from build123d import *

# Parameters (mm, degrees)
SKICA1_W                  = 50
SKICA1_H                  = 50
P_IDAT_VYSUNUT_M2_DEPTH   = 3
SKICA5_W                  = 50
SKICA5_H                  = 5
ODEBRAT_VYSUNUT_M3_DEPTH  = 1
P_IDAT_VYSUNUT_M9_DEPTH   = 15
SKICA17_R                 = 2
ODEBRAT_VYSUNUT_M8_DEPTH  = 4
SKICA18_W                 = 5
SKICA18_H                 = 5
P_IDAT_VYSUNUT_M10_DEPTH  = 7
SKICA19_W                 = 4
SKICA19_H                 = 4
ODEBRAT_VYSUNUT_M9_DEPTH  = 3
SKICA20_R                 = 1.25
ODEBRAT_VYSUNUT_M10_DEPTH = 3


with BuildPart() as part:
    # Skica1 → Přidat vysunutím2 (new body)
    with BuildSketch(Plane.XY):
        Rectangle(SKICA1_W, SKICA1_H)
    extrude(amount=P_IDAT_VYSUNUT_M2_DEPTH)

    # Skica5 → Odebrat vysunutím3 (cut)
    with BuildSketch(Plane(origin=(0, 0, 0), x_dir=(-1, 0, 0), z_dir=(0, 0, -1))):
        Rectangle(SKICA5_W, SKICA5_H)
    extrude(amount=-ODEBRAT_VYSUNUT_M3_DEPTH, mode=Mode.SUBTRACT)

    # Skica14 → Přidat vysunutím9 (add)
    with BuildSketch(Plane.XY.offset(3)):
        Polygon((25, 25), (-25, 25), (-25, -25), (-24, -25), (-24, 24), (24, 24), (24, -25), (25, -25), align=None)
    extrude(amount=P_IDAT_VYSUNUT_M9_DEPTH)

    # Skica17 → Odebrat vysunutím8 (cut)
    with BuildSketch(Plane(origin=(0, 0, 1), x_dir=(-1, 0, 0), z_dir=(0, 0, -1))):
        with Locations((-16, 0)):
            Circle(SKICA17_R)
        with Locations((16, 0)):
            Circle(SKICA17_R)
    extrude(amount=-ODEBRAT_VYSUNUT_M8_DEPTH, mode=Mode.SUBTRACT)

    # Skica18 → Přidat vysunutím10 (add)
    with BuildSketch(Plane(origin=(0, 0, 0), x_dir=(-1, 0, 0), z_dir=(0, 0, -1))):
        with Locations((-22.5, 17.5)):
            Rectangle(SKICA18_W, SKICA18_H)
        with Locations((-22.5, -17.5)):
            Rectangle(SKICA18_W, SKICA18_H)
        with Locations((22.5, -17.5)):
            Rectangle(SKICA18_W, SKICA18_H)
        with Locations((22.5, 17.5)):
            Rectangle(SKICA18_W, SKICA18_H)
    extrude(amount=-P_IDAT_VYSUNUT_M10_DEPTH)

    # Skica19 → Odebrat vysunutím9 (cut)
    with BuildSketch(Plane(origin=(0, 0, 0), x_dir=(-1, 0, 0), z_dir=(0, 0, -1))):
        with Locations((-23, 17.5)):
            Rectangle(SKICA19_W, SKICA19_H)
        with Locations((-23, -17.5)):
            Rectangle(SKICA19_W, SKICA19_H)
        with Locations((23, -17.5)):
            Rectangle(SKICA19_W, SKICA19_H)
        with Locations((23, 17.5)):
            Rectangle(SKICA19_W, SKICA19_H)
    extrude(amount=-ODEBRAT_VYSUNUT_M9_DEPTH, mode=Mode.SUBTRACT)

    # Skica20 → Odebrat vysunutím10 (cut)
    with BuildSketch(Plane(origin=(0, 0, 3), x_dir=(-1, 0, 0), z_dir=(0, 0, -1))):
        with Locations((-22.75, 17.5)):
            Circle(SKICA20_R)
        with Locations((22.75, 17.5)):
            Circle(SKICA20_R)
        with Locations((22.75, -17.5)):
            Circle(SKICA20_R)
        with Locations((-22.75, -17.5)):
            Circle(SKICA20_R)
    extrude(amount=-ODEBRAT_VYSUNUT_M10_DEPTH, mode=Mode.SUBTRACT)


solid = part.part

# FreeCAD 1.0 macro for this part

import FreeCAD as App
import Part
import Sketcher
Q = App.Units.Quantity

doc = App.newDocument("Part")
params = doc.addObject("Spreadsheet::Sheet", "Params")
for row, (alias, value) in enumerate([
    ("sketch1_width", "50 mm"),
    ("pad1_length", "3 mm"),
    ("sketch2_width", "50 mm"),
    ("sketch2_height", "5 mm"),
    ("pocket1_length", "1 mm"),
    ("sketch3_width", "50 mm"),
    ("sketch3_width2", "1 mm"),
    ("sketch3_height", "49 mm"),
    ("pad2_length", "15 mm"),
    ("sketch4_diameter", "4 mm"),
    ("pocket2_length", "4 mm"),
    ("sketch5_width", "5 mm"),
    ("pad3_length", "7 mm"),
    ("sketch6_width", "4 mm"),
    ("pocket3_length", "3 mm"),
    ("sketch7_diameter", "2.5 mm"),
    ("pocket4_length", "3 mm"),
], start=1):
    params.set(f"A{row}", alias)
    params.set(f"B{row}", "=" + value)
    params.setAlias(f"B{row}", alias)

body = doc.addObject("PartDesign::Body", "Body")

# Sketch on XY plane
sketch1 = doc.addObject("Sketcher::SketchObject", "Sketch")
body.addObject(sketch1)
sketch1.AttachmentSupport = (doc.XY_Plane, [""])
sketch1.MapMode = "FlatFace"
sketch1.addGeometry([
    Part.LineSegment(App.Vector(-25, 25, 0), App.Vector(-25, -25, 0)),
    Part.LineSegment(App.Vector(-25, -25, 0), App.Vector(25, -25, 0)),
    Part.LineSegment(App.Vector(25, -25, 0), App.Vector(25, 25, 0)),
    Part.LineSegment(App.Vector(25, 25, 0), App.Vector(-25, 25, 0)),
], False)
sketch1.addConstraint([
    Sketcher.Constraint("Coincident", 0, 2, 1, 1),
    Sketcher.Constraint("Coincident", 1, 2, 2, 1),
    Sketcher.Constraint("Coincident", 2, 2, 3, 1),
    Sketcher.Constraint("Coincident", 3, 2, 0, 1),
    Sketcher.Constraint("Vertical", 0),
    Sketcher.Constraint("Horizontal", 1),
    Sketcher.Constraint("Vertical", 2),
    Sketcher.Constraint("Horizontal", 3),
    Sketcher.Constraint("Symmetric", 0, 2, 2, 2, -1, 1),
    Sketcher.Constraint("Equal", 3, 0),
    Sketcher.Constraint("DistanceX", 1, 1, 1, 2, Q("50 mm")),
])
sketch1.setExpression("Constraints[10]", "Params.sketch1_width")
pad1 = doc.addObject("PartDesign::Pad", "Pad")
body.addObject(pad1)
pad1.Profile = sketch1
pad1.setExpression("Length", "Params.pad1_length")

# Sketch on XY plane
sketch2 = doc.addObject("Sketcher::SketchObject", "Sketch001")
body.addObject(sketch2)
sketch2.AttachmentSupport = (doc.XY_Plane, [""])
sketch2.MapMode = "FlatFace"
sketch2.addGeometry([
    Part.LineSegment(App.Vector(25, 2, 0), App.Vector(25, -2, 0)),
    Part.LineSegment(App.Vector(25, -2, 0), App.Vector(-25, -2, 0)),
    Part.LineSegment(App.Vector(-25, -2, 0), App.Vector(-25, 2, 0)),
    Part.LineSegment(App.Vector(-25, 2, 0), App.Vector(25, 2, 0)),
], False)
sketch2.addConstraint([
    Sketcher.Constraint("Coincident", 0, 2, 1, 1),
    Sketcher.Constraint("Coincident", 1, 2, 2, 1),
    Sketcher.Constraint("Coincident", 2, 2, 3, 1),
    Sketcher.Constraint("Coincident", 3, 2, 0, 1),
    Sketcher.Constraint("Vertical", 0),
    Sketcher.Constraint("Horizontal", 1),
    Sketcher.Constraint("Vertical", 2),
    Sketcher.Constraint("Horizontal", 3),
    Sketcher.Constraint("Symmetric", 0, 2, 2, 2, -1, 1),
    Sketcher.Constraint("DistanceX", 1, 2, 1, 1, Q("50 mm")),
    Sketcher.Constraint("DistanceY", 0, 2, 0, 1, Q("5 mm")),
])
sketch2.setExpression("Constraints[9]", "Params.sketch2_width")
sketch2.setExpression("Constraints[10]", "Params.sketch2_height")
pocket1 = doc.addObject("PartDesign::Pocket", "Pocket")
body.addObject(pocket1)
pocket1.Profile = sketch2
pocket1.setExpression("Length", "Params.pocket1_length")
pocket1.Reversed = True

# Sketch on XY plane
sketch3 = doc.addObject("Sketcher::SketchObject", "Sketch002")
body.addObject(sketch3)
sketch3.AttachmentSupport = (doc.XY_Plane, [""])
sketch3.MapMode = "FlatFace"
sketch3.AttachmentOffset = App.Placement(App.Vector(0, 0, 3), App.Rotation())
sketch3.addGeometry([
    Part.LineSegment(App.Vector(25, 25, 0), App.Vector(-25, 25, 0)),  # 0
    Part.LineSegment(App.Vector(-25, 25, 0), App.Vector(-25, -25, 0)),  # 1
    Part.LineSegment(App.Vector(-25, -25, 0), App.Vector(-24, -25, 0)),  # 2
    Part.LineSegment(App.Vector(-24, -25, 0), App.Vector(-24, 24, 0)),  # 3
    Part.LineSegment(App.Vector(-24, 24, 0), App.Vector(24, 24, 0)),  # 4
    Part.LineSegment(App.Vector(24, 24, 0), App.Vector(24, -25, 0)),  # 5
    Part.LineSegment(App.Vector(24, -25, 0), App.Vector(25, -25, 0)),  # 6
    Part.LineSegment(App.Vector(25, -25, 0), App.Vector(25, 25, 0)),  # 7
], False)
sketch3.addConstraint([
    Sketcher.Constraint("Coincident", 0, 2, 1, 1),
    Sketcher.Constraint("Coincident", 1, 2, 2, 1),
    Sketcher.Constraint("Coincident", 2, 2, 3, 1),
    Sketcher.Constraint("Coincident", 3, 2, 4, 1),
    Sketcher.Constraint("Coincident", 4, 2, 5, 1),
    Sketcher.Constraint("Coincident", 5, 2, 6, 1),
    Sketcher.Constraint("Coincident", 6, 2, 7, 1),
    Sketcher.Constraint("Coincident", 7, 2, 0, 1),
    Sketcher.Constraint("Horizontal", 0),
    Sketcher.Constraint("Vertical", 1),
    Sketcher.Constraint("Horizontal", 2),
    Sketcher.Constraint("Vertical", 3),
    Sketcher.Constraint("Horizontal", 4),
    Sketcher.Constraint("Vertical", 5),
    Sketcher.Constraint("Horizontal", 6),
    Sketcher.Constraint("Vertical", 7),
    Sketcher.Constraint("Symmetric", 0, 2, 6, 2, -1, 1),
    Sketcher.Constraint("Symmetric", 2, 2, 5, 2, -2),
    Sketcher.Constraint("Equal", 0, 1),
    Sketcher.Constraint("DistanceX", 0, 2, 0, 1, Q("50 mm")),
    Sketcher.Constraint("DistanceX", 2, 1, 2, 2, Q("1 mm")),
    Sketcher.Constraint("DistanceY", 3, 1, 3, 2, Q("49 mm")),
])
sketch3.setExpression("Constraints[19]", "Params.sketch3_width")
sketch3.setExpression("Constraints[20]", "Params.sketch3_width2")
sketch3.setExpression("Constraints[21]", "Params.sketch3_height")
pad2 = doc.addObject("PartDesign::Pad", "Pad001")
body.addObject(pad2)
pad2.Profile = sketch3
pad2.setExpression("Length", "Params.pad2_length")

# Sketch on XY plane
sketch4 = doc.addObject("Sketcher::SketchObject", "Sketch003")
body.addObject(sketch4)
sketch4.AttachmentSupport = (doc.XY_Plane, [""])
sketch4.MapMode = "FlatFace"
sketch4.AttachmentOffset = App.Placement(App.Vector(0, 0, 1), App.Rotation())
sketch4.addGeometry([
    Part.Circle(App.Vector(16, 0, 0), App.Vector(0, 0, 1), 2),
    Part.Circle(App.Vector(-16, 0, 0), App.Vector(0, 0, 1), 2),
], False)
sketch4.addConstraint([
    Sketcher.Constraint("Equal", 0, 1),
    Sketcher.Constraint("Symmetric", 0, 3, 1, 3, -1, 1),
    Sketcher.Constraint("PointOnObject", 0, 3, -1),
    Sketcher.Constraint("Diameter", 0, Q("4 mm")),
    Sketcher.Constraint("DistanceX", -1, 1, 0, 3, Q("16 mm")),
])
sketch4.setExpression("Constraints[3]", "Params.sketch4_diameter")
pocket2 = doc.addObject("PartDesign::Pocket", "Pocket001")
body.addObject(pocket2)
pocket2.Profile = sketch4
pocket2.setExpression("Length", "Params.pocket2_length")
pocket2.Reversed = True

# Sketch on XY plane
sketch5 = doc.addObject("Sketcher::SketchObject", "Sketch004")
body.addObject(sketch5)
sketch5.AttachmentSupport = (doc.XY_Plane, [""])
sketch5.MapMode = "FlatFace"
sketch5.addGeometry([
    Part.LineSegment(App.Vector(25, 20, 0), App.Vector(25, 15, 0)),  # 0
    Part.LineSegment(App.Vector(25, 15, 0), App.Vector(20, 15, 0)),  # 1
    Part.LineSegment(App.Vector(20, 15, 0), App.Vector(20, 20, 0)),  # 2
    Part.LineSegment(App.Vector(20, 20, 0), App.Vector(25, 20, 0)),  # 3
    Part.LineSegment(App.Vector(25, -15, 0), App.Vector(25, -20, 0)),  # 4
    Part.LineSegment(App.Vector(25, -20, 0), App.Vector(20, -20, 0)),  # 5
    Part.LineSegment(App.Vector(20, -20, 0), App.Vector(20, -15, 0)),  # 6
    Part.LineSegment(App.Vector(20, -15, 0), App.Vector(25, -15, 0)),  # 7
    Part.LineSegment(App.Vector(-20, -15, 0), App.Vector(-20, -20, 0)),  # 8
    Part.LineSegment(App.Vector(-20, -20, 0), App.Vector(-25, -20, 0)),  # 9
    Part.LineSegment(App.Vector(-25, -20, 0), App.Vector(-25, -15, 0)),  # 10
    Part.LineSegment(App.Vector(-25, -15, 0), App.Vector(-20, -15, 0)),  # 11
    Part.LineSegment(App.Vector(-20, 20, 0), App.Vector(-20, 15, 0)),  # 12
    Part.LineSegment(App.Vector(-20, 15, 0), App.Vector(-25, 15, 0)),  # 13
    Part.LineSegment(App.Vector(-25, 15, 0), App.Vector(-25, 20, 0)),  # 14
    Part.LineSegment(App.Vector(-25, 20, 0), App.Vector(-20, 20, 0)),  # 15
], False)
sketch5.addConstraint([
    Sketcher.Constraint("Coincident", 0, 2, 1, 1),
    Sketcher.Constraint("Coincident", 1, 2, 2, 1),
    Sketcher.Constraint("Coincident", 2, 2, 3, 1),
    Sketcher.Constraint("Coincident", 3, 2, 0, 1),
    Sketcher.Constraint("Coincident", 4, 2, 5, 1),
    Sketcher.Constraint("Coincident", 5, 2, 6, 1),
    Sketcher.Constraint("Coincident", 6, 2, 7, 1),
    Sketcher.Constraint("Coincident", 7, 2, 4, 1),
    Sketcher.Constraint("Coincident", 8, 2, 9, 1),
    Sketcher.Constraint("Coincident", 9, 2, 10, 1),
    Sketcher.Constraint("Coincident", 10, 2, 11, 1),
    Sketcher.Constraint("Coincident", 11, 2, 8, 1),
    Sketcher.Constraint("Coincident", 12, 2, 13, 1),
    Sketcher.Constraint("Coincident", 13, 2, 14, 1),
    Sketcher.Constraint("Coincident", 14, 2, 15, 1),
    Sketcher.Constraint("Coincident", 15, 2, 12, 1),
    Sketcher.Constraint("Vertical", 0),
    Sketcher.Constraint("Horizontal", 1),
    Sketcher.Constraint("Vertical", 2),
    Sketcher.Constraint("Horizontal", 3),
    Sketcher.Constraint("Vertical", 4),
    Sketcher.Constraint("Horizontal", 5),
    Sketcher.Constraint("Vertical", 6),
    Sketcher.Constraint("Horizontal", 7),
    Sketcher.Constraint("Vertical", 8),
    Sketcher.Constraint("Horizontal", 9),
    Sketcher.Constraint("Vertical", 10),
    Sketcher.Constraint("Horizontal", 11),
    Sketcher.Constraint("Vertical", 12),
    Sketcher.Constraint("Horizontal", 13),
    Sketcher.Constraint("Vertical", 14),
    Sketcher.Constraint("Horizontal", 15),
    Sketcher.Constraint("Symmetric", 2, 2, 8, 2, -1, 1),
    Sketcher.Constraint("Symmetric", 0, 2, 10, 2, -1, 1),
    Sketcher.Constraint("Symmetric", 6, 2, 12, 2, -1, 1),
    Sketcher.Constraint("Symmetric", 4, 2, 14, 2, -1, 1),
    Sketcher.Constraint("Symmetric", 5, 2, 8, 2, -2),
    Sketcher.Constraint("Symmetric", 7, 2, 10, 2, -2),
    Sketcher.Constraint("Equal", 15, 0),
    Sketcher.Constraint("DistanceX", 1, 2, 1, 1, Q("5 mm")),
    Sketcher.Constraint("DistanceX", -1, 1, 0, 2, Q("25 mm")),
    Sketcher.Constraint("DistanceY", -1, 1, 0, 2, Q("15 mm")),
])
sketch5.setExpression("Constraints[39]", "Params.sketch5_width")
pad3 = doc.addObject("PartDesign::Pad", "Pad002")
body.addObject(pad3)
pad3.Profile = sketch5
pad3.setExpression("Length", "Params.pad3_length")

# Sketch on XY plane
sketch6 = doc.addObject("Sketcher::SketchObject", "Sketch005")
body.addObject(sketch6)
sketch6.AttachmentSupport = (doc.XY_Plane, [""])
sketch6.MapMode = "FlatFace"
sketch6.addGeometry([
    Part.LineSegment(App.Vector(25, 19.5, 0), App.Vector(25, 15.5, 0)),  # 0
    Part.LineSegment(App.Vector(25, 15.5, 0), App.Vector(21, 15.5, 0)),  # 1
    Part.LineSegment(App.Vector(21, 15.5, 0), App.Vector(21, 19.5, 0)),  # 2
    Part.LineSegment(App.Vector(21, 19.5, 0), App.Vector(25, 19.5, 0)),  # 3
    Part.LineSegment(App.Vector(25, -15.5, 0), App.Vector(25, -19.5, 0)),  # 4
    Part.LineSegment(App.Vector(25, -19.5, 0), App.Vector(21, -19.5, 0)),  # 5
    Part.LineSegment(App.Vector(21, -19.5, 0), App.Vector(21, -15.5, 0)),  # 6
    Part.LineSegment(App.Vector(21, -15.5, 0), App.Vector(25, -15.5, 0)),  # 7
    Part.LineSegment(App.Vector(-21, -15.5, 0), App.Vector(-21, -19.5, 0)),  # 8
    Part.LineSegment(App.Vector(-21, -19.5, 0), App.Vector(-25, -19.5, 0)),  # 9
    Part.LineSegment(App.Vector(-25, -19.5, 0), App.Vector(-25, -15.5, 0)),  # 10
    Part.LineSegment(App.Vector(-25, -15.5, 0), App.Vector(-21, -15.5, 0)),  # 11
    Part.LineSegment(App.Vector(-21, 19.5, 0), App.Vector(-21, 15.5, 0)),  # 12
    Part.LineSegment(App.Vector(-21, 15.5, 0), App.Vector(-25, 15.5, 0)),  # 13
    Part.LineSegment(App.Vector(-25, 15.5, 0), App.Vector(-25, 19.5, 0)),  # 14
    Part.LineSegment(App.Vector(-25, 19.5, 0), App.Vector(-21, 19.5, 0)),  # 15
], False)
sketch6.addConstraint([
    Sketcher.Constraint("Coincident", 0, 2, 1, 1),
    Sketcher.Constraint("Coincident", 1, 2, 2, 1),
    Sketcher.Constraint("Coincident", 2, 2, 3, 1),
    Sketcher.Constraint("Coincident", 3, 2, 0, 1),
    Sketcher.Constraint("Coincident", 4, 2, 5, 1),
    Sketcher.Constraint("Coincident", 5, 2, 6, 1),
    Sketcher.Constraint("Coincident", 6, 2, 7, 1),
    Sketcher.Constraint("Coincident", 7, 2, 4, 1),
    Sketcher.Constraint("Coincident", 8, 2, 9, 1),
    Sketcher.Constraint("Coincident", 9, 2, 10, 1),
    Sketcher.Constraint("Coincident", 10, 2, 11, 1),
    Sketcher.Constraint("Coincident", 11, 2, 8, 1),
    Sketcher.Constraint("Coincident", 12, 2, 13, 1),
    Sketcher.Constraint("Coincident", 13, 2, 14, 1),
    Sketcher.Constraint("Coincident", 14, 2, 15, 1),
    Sketcher.Constraint("Coincident", 15, 2, 12, 1),
    Sketcher.Constraint("Vertical", 0),
    Sketcher.Constraint("Horizontal", 1),
    Sketcher.Constraint("Vertical", 2),
    Sketcher.Constraint("Horizontal", 3),
    Sketcher.Constraint("Vertical", 4),
    Sketcher.Constraint("Horizontal", 5),
    Sketcher.Constraint("Vertical", 6),
    Sketcher.Constraint("Horizontal", 7),
    Sketcher.Constraint("Vertical", 8),
    Sketcher.Constraint("Horizontal", 9),
    Sketcher.Constraint("Vertical", 10),
    Sketcher.Constraint("Horizontal", 11),
    Sketcher.Constraint("Vertical", 12),
    Sketcher.Constraint("Horizontal", 13),
    Sketcher.Constraint("Vertical", 14),
    Sketcher.Constraint("Horizontal", 15),
    Sketcher.Constraint("Symmetric", 2, 2, 8, 2, -1, 1),
    Sketcher.Constraint("Symmetric", 0, 2, 10, 2, -1, 1),
    Sketcher.Constraint("Symmetric", 6, 2, 12, 2, -1, 1),
    Sketcher.Constraint("Symmetric", 4, 2, 14, 2, -1, 1),
    Sketcher.Constraint("Symmetric", 5, 2, 8, 2, -2),
    Sketcher.Constraint("Symmetric", 7, 2, 10, 2, -2),
    Sketcher.Constraint("Equal", 15, 0),
    Sketcher.Constraint("DistanceX", 1, 2, 1, 1, Q("4 mm")),
    Sketcher.Constraint("DistanceX", -1, 1, 0, 2, Q("25 mm")),
    Sketcher.Constraint("DistanceY", 4, 2, 0, 2, Q("35 mm")),
])
sketch6.setExpression("Constraints[39]", "Params.sketch6_width")
pocket3 = doc.addObject("PartDesign::Pocket", "Pocket002")
body.addObject(pocket3)
pocket3.Profile = sketch6
pocket3.setExpression("Length", "Params.pocket3_length")
pocket3.Reversed = True

# Sketch on XY plane
sketch7 = doc.addObject("Sketcher::SketchObject", "Sketch006")
body.addObject(sketch7)
sketch7.AttachmentSupport = (doc.XY_Plane, [""])
sketch7.MapMode = "FlatFace"
sketch7.AttachmentOffset = App.Placement(App.Vector(0, 0, 3), App.Rotation())
sketch7.addGeometry([
    Part.Circle(App.Vector(22.8, 17.5, 0), App.Vector(0, 0, 1), 1.2),
    Part.Circle(App.Vector(-22.8, 17.5, 0), App.Vector(0, 0, 1), 1.2),
    Part.Circle(App.Vector(-22.8, -17.5, 0), App.Vector(0, 0, 1), 1.2),
    Part.Circle(App.Vector(22.8, -17.5, 0), App.Vector(0, 0, 1), 1.2),
], False)
sketch7.addConstraint([
    Sketcher.Constraint("Equal", 0, 1),
    Sketcher.Constraint("Equal", 1, 2),
    Sketcher.Constraint("Equal", 2, 3),
    Sketcher.Constraint("Symmetric", 0, 3, 2, 3, -1, 1),
    Sketcher.Constraint("Symmetric", 1, 3, 3, 3, -1, 1),
    Sketcher.Constraint("Symmetric", 0, 3, 1, 3, -2),
    Sketcher.Constraint("Diameter", 0, Q("2.5 mm")),
    Sketcher.Constraint("DistanceY", 2, 3, 1, 3, Q("35 mm")),
    Sketcher.Constraint("DistanceX", 1, 3, 0, 3, Q("45.5 mm")),
])
sketch7.setExpression("Constraints[6]", "Params.sketch7_diameter")
pocket4 = doc.addObject("PartDesign::Pocket", "Pocket003")
body.addObject(pocket4)
pocket4.Profile = sketch7
pocket4.setExpression("Length", "Params.pocket4_length")
pocket4.Reversed = True

doc.recompute()
